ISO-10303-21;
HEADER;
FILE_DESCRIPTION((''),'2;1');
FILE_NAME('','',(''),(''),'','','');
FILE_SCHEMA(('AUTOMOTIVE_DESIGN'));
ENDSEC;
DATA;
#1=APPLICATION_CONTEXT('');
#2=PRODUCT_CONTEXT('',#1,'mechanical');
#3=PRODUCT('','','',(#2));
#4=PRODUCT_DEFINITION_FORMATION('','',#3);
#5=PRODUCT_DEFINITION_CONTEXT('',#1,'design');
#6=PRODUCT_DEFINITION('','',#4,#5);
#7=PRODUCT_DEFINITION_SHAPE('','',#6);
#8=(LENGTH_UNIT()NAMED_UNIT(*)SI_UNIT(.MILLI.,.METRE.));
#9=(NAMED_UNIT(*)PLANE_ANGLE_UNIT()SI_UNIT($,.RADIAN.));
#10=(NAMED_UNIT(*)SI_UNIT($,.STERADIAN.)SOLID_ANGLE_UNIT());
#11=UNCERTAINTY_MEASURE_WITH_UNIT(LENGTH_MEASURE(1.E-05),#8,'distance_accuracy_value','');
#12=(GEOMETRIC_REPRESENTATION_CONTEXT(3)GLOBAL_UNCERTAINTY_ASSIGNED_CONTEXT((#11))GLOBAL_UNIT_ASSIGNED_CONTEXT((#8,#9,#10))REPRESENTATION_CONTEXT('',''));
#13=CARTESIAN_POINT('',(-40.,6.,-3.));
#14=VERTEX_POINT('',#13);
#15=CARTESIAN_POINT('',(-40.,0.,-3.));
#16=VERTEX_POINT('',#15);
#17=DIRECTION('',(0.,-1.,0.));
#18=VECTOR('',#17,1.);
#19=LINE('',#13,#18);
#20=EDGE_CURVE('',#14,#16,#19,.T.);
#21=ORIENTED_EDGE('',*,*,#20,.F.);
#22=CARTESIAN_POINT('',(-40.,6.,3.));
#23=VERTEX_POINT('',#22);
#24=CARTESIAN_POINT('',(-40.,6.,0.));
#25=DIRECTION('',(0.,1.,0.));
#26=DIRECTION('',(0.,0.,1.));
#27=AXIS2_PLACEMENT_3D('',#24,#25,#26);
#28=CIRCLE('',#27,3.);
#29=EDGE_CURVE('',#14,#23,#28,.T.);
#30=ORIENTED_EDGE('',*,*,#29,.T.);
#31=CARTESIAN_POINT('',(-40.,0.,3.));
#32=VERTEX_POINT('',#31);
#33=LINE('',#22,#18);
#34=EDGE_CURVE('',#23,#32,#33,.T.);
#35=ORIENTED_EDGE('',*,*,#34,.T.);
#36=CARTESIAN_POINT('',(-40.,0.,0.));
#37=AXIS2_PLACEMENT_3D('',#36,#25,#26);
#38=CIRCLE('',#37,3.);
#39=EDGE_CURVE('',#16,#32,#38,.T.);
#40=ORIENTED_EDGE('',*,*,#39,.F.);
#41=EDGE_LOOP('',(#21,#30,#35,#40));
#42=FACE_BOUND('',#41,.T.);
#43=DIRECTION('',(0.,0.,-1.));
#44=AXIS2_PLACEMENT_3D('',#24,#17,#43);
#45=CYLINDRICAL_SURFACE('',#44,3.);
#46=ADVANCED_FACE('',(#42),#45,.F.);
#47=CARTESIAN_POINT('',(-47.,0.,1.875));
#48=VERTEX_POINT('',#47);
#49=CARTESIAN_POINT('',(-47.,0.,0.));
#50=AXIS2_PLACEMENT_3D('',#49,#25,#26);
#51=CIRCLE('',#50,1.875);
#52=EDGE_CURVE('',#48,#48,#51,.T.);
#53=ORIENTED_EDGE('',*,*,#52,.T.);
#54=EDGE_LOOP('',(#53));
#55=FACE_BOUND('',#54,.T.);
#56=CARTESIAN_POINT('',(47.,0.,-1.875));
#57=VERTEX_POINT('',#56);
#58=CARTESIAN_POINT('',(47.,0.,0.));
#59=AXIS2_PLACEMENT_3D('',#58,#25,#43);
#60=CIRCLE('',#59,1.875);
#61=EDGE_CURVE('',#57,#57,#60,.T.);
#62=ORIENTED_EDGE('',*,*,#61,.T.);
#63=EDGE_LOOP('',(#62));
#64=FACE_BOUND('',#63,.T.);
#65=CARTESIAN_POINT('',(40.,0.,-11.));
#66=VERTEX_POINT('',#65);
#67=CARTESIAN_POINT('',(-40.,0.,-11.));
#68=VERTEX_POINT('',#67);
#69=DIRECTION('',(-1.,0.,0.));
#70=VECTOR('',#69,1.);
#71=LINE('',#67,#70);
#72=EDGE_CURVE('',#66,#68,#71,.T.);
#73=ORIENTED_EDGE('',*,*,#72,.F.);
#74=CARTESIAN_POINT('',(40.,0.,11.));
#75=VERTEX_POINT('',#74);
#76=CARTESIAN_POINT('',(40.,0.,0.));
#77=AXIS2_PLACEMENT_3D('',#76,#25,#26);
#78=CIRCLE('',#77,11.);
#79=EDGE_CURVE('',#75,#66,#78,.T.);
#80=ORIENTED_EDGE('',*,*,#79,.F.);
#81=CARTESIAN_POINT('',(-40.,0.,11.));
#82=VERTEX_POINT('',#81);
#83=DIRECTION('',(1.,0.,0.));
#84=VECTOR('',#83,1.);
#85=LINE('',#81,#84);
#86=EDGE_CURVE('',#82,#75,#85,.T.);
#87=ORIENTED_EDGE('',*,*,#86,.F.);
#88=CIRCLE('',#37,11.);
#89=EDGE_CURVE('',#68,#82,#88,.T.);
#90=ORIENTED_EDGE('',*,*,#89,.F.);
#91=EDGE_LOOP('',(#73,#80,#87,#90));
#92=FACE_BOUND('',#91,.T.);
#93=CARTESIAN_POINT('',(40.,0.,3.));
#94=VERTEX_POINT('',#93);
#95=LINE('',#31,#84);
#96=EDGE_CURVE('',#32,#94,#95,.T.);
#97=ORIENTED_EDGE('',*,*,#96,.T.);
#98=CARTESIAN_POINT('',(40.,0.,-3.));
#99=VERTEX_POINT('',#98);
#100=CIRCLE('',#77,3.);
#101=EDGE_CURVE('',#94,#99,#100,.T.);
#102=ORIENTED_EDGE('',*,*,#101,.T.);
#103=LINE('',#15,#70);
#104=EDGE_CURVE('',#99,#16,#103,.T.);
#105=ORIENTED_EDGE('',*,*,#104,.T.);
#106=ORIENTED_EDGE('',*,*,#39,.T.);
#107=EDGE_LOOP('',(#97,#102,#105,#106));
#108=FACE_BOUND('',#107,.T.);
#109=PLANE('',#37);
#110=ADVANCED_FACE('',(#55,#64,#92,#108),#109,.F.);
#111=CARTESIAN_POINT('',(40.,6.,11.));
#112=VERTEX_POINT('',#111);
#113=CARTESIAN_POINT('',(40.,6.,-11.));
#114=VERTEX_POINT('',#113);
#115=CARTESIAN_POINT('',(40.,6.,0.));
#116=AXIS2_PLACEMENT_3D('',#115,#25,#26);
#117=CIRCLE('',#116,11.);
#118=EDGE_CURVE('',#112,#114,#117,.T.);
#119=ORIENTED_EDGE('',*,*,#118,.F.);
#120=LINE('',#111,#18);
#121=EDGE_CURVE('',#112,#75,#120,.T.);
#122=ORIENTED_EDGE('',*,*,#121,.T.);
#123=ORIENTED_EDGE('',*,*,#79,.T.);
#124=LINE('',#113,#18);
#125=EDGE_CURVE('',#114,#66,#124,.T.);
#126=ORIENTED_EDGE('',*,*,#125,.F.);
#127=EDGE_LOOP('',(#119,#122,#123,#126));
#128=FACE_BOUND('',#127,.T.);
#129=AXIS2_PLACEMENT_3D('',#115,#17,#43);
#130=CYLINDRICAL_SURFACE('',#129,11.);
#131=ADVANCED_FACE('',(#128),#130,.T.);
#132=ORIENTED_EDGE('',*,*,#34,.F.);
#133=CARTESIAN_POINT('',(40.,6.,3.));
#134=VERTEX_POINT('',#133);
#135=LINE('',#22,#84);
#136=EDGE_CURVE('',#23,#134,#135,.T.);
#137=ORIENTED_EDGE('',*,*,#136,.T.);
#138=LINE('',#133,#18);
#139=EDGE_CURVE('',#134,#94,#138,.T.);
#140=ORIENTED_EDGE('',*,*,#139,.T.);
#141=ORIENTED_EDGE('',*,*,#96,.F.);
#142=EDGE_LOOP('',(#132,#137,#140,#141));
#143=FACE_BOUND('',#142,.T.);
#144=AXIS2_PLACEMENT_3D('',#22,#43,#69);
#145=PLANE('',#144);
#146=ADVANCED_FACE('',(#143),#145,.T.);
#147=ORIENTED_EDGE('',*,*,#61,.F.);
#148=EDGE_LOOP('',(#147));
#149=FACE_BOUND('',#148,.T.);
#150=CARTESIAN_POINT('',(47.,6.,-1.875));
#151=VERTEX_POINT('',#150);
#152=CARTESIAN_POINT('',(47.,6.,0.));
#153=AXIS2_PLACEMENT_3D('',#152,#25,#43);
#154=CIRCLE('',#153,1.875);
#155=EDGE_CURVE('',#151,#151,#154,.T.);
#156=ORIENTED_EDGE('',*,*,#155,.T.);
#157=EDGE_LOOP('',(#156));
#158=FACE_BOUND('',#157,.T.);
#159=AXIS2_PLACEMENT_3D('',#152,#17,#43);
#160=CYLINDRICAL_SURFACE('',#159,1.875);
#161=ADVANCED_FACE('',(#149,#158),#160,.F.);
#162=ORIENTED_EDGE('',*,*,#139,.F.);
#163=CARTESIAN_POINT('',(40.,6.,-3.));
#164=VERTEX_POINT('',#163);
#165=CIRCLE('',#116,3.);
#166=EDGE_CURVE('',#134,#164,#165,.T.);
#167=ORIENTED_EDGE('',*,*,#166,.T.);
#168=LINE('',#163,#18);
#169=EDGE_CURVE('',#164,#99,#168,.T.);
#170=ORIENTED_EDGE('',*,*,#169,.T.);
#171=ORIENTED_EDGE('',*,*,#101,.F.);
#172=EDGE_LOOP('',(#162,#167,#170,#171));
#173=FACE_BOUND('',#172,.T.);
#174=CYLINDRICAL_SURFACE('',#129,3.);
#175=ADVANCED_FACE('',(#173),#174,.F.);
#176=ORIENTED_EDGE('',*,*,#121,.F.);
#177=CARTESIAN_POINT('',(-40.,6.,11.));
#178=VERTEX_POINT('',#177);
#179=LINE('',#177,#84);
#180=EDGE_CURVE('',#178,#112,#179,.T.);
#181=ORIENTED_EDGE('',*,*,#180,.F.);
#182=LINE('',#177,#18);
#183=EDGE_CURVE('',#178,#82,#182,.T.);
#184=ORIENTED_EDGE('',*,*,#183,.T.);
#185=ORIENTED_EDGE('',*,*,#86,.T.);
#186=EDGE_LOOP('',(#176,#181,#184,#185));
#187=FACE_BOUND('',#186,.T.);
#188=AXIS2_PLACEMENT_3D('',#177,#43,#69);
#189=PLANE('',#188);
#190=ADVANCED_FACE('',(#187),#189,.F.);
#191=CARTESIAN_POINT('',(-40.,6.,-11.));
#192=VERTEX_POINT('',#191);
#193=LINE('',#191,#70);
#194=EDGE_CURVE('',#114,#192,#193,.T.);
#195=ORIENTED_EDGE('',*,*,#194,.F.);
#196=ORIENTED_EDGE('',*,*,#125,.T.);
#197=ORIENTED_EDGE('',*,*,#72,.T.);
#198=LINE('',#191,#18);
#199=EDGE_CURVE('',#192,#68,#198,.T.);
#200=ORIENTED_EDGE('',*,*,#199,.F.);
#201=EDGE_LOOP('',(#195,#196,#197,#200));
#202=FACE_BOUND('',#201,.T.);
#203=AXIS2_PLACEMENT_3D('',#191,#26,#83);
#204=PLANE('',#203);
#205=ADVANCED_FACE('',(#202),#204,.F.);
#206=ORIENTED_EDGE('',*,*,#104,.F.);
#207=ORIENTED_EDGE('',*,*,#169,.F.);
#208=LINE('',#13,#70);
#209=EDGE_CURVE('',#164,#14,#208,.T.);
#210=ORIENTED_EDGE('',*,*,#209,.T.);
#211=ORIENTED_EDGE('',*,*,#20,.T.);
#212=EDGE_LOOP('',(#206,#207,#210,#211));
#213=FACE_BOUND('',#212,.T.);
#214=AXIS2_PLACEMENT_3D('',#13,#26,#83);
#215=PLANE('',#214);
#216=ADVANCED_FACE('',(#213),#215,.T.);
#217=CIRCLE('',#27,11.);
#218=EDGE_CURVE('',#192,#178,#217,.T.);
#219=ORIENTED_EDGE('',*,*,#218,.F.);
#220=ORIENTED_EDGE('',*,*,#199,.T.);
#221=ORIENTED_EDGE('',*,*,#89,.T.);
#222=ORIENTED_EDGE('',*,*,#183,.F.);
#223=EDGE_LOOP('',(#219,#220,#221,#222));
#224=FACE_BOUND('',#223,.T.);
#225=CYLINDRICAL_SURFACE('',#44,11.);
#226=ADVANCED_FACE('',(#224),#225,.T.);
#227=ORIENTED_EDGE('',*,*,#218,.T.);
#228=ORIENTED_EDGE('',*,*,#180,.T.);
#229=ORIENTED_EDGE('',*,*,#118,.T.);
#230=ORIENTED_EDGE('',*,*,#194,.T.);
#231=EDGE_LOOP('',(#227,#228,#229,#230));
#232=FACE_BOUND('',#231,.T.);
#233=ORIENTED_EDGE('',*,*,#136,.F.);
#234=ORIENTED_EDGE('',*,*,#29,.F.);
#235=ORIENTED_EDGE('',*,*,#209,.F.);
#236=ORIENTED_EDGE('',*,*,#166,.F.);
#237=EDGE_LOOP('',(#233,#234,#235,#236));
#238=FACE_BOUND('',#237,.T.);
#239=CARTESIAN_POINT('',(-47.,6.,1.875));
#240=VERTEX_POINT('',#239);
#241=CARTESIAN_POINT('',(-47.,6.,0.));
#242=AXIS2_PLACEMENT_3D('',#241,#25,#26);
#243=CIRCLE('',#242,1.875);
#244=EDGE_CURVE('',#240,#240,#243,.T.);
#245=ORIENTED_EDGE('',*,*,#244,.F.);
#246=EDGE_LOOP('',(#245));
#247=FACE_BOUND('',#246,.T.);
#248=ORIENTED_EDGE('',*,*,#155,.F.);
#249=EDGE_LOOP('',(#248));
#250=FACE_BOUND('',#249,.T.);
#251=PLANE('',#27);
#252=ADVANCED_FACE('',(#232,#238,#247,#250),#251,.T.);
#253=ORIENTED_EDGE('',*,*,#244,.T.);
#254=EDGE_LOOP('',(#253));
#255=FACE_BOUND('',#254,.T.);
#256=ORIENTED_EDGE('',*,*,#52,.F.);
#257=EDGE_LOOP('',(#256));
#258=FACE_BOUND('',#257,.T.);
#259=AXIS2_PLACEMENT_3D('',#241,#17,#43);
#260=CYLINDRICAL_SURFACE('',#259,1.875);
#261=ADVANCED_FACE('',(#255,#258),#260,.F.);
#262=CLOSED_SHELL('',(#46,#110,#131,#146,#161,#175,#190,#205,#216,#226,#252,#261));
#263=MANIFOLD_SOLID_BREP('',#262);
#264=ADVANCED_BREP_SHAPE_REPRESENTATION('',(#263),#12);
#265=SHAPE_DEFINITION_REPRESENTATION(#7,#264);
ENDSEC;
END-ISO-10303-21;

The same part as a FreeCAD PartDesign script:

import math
import FreeCAD as App
import Part
import Sketcher
from FreeCAD import Vector

doc = App.newDocument("Part")
params = doc.addObject("Spreadsheet::Sheet", "Params")
for row, (alias, value) in enumerate([
    ("sketch1_radius", "11 mm"),
    ("sketch1_radius2", "3 mm"),
    ("sketch1_diameter", "3.75 mm"),
    ("sketch1_width", "80 mm"),
    ("pad1_length", "6 mm"),
], start=1):
    params.set(f"A{row}", alias)
    params.set(f"B{row}", "=" + value)
    params.setAlias(f"B{row}", alias)

body = doc.addObject("PartDesign::Body", "Body")

# Sketch on XZ plane
sketch1 = body.newObject("Sketcher::SketchObject", "Sketch")
sketch1.AttachmentSupport = (doc.getObject("XZ_Plane"), [""])
sketch1.MapMode = "FlatFace"
sketch1.addGeometry([
    Part.LineSegment(Vector(40, -11, 0), Vector(-40, -11, 0)),  # 0
    Part.ArcOfCircle(Part.Circle(Vector(-40, 0, 0), Vector(0, 0, 1), 11), math.radians(90), math.radians(270)),  # 1
    Part.LineSegment(Vector(-40, 11, 0), Vector(40, 11, 0)),  # 2
    Part.ArcOfCircle(Part.Circle(Vector(40, 0, 0), Vector(0, 0, 1), 11), math.radians(-90), math.radians(90)),  # 3
    Part.Circle(Vector(47, 0, 0), Vector(0, 0, 1), 1.875),  # 4
    Part.LineSegment(Vector(-40, -3, 0), Vector(40, -3, 0)),  # 5
    Part.ArcOfCircle(Part.Circle(Vector(40, 0, 0), Vector(0, 0, 1), 3), math.radians(-90), math.radians(90)),  # 6
    Part.LineSegment(Vector(40, 3, 0), Vector(-40, 3, 0)),  # 7
    Part.ArcOfCircle(Part.Circle(Vector(-40, 0, 0), Vector(0, 0, 1), 3), math.radians(90), math.radians(270)),  # 8
    Part.Circle(Vector(-47, 0, 0), Vector(0, 0, 1), 1.875),  # 9
], False)
sketch1.addConstraint([
    Sketcher.Constraint("Tangent", 0, 2, 1, 2),
    Sketcher.Constraint("Tangent", 1, 1, 2, 1),
    Sketcher.Constraint("Tangent", 2, 2, 3, 2),
    Sketcher.Constraint("Tangent", 3, 1, 0, 1),
    Sketcher.Constraint("Tangent", 5, 2, 6, 1),
    Sketcher.Constraint("Tangent", 6, 2, 7, 1),
    Sketcher.Constraint("Tangent", 7, 2, 8, 1),
    Sketcher.Constraint("Tangent", 8, 2, 5, 1),
    Sketcher.Constraint("Horizontal", 0),
    Sketcher.Constraint("Horizontal", 2),
    Sketcher.Constraint("Horizontal", 5),
    Sketcher.Constraint("Horizontal", 7),
    Sketcher.Constraint("Coincident", 6, 3, 3, 3),
    Sketcher.Constraint("Equal", 4, 9),
    Sketcher.Constraint("Symmetric", 1, 3, 3, 3, -1, 1),
    Sketcher.Constraint("Symmetric", 4, 3, 9, 3, -1, 1),
    Sketcher.Constraint("PointOnObject", 4, 3, -1),
    Sketcher.Constraint("Vertical", 8, 3, 0, 2),
    Sketcher.Constraint("Radius", 1, 11.0),
    Sketcher.Constraint("Radius", 6, 3.0),
    Sketcher.Constraint("Diameter", 4, 3.75),
    Sketcher.Constraint("DistanceX", 0, 2, 0, 1, 80.0),
    Sketcher.Constraint("DistanceX", -1, 1, 4, 3, 47.0),
])
sketch1.setExpression("Constraints[18]", "Params.sketch1_radius")
sketch1.setExpression("Constraints[19]", "Params.sketch1_radius2")
sketch1.setExpression("Constraints[20]", "Params.sketch1_diameter")
sketch1.setExpression("Constraints[21]", "Params.sketch1_width")
pad1 = body.newObject("PartDesign::Pad", "Pad")
pad1.Profile = sketch1
pad1.setExpression("Length", "Params.pad1_length")
pad1.Reversed = True

doc.recompute()
